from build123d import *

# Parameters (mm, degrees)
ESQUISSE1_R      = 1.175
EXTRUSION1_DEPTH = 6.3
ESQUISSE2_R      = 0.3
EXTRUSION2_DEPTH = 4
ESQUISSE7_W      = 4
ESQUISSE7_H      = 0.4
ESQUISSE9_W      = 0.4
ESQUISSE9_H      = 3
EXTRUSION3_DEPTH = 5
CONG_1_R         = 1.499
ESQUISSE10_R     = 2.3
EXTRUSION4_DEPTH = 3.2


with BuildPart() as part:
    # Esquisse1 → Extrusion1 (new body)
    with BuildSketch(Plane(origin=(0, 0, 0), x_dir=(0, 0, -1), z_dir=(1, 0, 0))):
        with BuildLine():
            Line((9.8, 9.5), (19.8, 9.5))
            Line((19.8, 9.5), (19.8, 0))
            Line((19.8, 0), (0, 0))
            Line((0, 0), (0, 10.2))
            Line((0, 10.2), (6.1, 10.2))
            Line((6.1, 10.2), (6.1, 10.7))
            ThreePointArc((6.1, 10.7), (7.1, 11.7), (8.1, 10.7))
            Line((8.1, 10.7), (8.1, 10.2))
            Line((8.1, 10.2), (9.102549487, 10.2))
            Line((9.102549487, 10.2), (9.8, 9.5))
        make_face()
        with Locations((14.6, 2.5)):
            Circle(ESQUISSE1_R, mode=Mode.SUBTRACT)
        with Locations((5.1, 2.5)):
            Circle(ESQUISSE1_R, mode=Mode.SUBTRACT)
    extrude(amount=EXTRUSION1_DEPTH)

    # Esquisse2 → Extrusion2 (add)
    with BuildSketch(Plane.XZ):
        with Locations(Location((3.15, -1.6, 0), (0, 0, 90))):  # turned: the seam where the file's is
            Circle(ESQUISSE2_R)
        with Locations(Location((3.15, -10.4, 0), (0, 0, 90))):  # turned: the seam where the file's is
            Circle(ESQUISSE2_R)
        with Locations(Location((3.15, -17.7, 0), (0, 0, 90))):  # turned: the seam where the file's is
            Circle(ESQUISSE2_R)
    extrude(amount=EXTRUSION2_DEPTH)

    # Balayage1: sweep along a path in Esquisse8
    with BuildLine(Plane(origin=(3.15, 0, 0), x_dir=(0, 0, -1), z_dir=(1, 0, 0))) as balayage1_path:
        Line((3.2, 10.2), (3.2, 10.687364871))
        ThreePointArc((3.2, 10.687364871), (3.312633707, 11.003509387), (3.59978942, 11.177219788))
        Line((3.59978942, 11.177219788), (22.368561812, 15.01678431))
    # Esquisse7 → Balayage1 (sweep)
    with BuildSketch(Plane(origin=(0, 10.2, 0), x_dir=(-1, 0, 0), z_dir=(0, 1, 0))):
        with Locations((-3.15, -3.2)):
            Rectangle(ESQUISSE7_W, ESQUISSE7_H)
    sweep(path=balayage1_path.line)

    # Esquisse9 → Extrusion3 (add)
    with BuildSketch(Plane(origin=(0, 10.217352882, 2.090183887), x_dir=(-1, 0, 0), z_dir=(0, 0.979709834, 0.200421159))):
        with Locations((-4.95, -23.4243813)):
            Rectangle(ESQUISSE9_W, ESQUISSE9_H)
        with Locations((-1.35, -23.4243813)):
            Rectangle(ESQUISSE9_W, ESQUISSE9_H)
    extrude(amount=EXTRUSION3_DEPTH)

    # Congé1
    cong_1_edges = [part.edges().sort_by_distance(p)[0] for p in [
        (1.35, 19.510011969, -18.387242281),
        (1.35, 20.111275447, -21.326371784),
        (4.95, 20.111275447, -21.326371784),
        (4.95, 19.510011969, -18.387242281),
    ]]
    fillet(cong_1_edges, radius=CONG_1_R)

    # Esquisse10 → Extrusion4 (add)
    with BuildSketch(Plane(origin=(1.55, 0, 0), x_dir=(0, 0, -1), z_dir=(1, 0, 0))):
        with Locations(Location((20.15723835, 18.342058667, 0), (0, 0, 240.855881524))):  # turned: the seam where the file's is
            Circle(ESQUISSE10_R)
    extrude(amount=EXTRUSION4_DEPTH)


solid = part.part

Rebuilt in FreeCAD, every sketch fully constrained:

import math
import FreeCAD as App
import Part
import Sketcher


def edges_at(feature, points):
    """Names of the edges that pass closest to the given points."""
    edges = feature.Shape.Edges
    near = lambda p: min(range(len(edges)), key=lambda i: edges[i].distToShape(Part.Vertex(*p))[0])
    return sorted({f"Edge{near(p) + 1}" for p in points})

doc = App.newDocument("Part")
params = doc.addObject("Spreadsheet::Sheet", "Params")
for row, (alias, value) in enumerate([
    ("sketch1_radius", "1 mm"),
    ("sketch1_diameter", "2.35 mm"),
    ("sketch1_height", "10 mm"),
    ("sketch1_width", "0.5 mm"),
    ("sketch1_width2", "10.2 mm"),
    ("pad1_length", "6.3 mm"),
    ("sketch2_diameter", "0.6 mm"),
    ("pad2_length", "4 mm"),
    ("sketch3_width", "4 mm"),
    ("sketch3_height", "0.4 mm"),
    ("sketch4_radius", "0.5 mm"),
    ("sketch5_height", "3 mm"),
    ("sketch5_width", "0.4 mm"),
    ("pad3_length", "5 mm"),
    ("fillet_radius", "1.499 mm"),
    ("sketch6_diameter", "4.6 mm"),
    ("pad4_length", "3.2 mm"),
], start=1):
    params.set(f"A{row}", alias)
    params.set(f"B{row}", "=" + value)
    params.setAlias(f"B{row}", alias)

body = doc.addObject("PartDesign::Body", "Body")

# Sketch on YZ plane
sketch1 = doc.addObject("Sketcher::SketchObject", "Sketch")
body.addObject(sketch1)
sketch1.AttachmentSupport = (doc.YZ_Plane, [""])
sketch1.MapMode = "FlatFace"
sketch1.addGeometry([
    Part.LineSegment(App.Vector(9.5, -19.8, 0), App.Vector(9.5, -9.8, 0)),  # 0
    Part.LineSegment(App.Vector(9.5, -9.8, 0), App.Vector(10.2, -9.1, 0)),  # 1
    Part.LineSegment(App.Vector(10.2, -9.1, 0), App.Vector(10.2, -8.1, 0)),  # 2
    Part.LineSegment(App.Vector(10.2, -8.1, 0), App.Vector(10.7, -8.1, 0)),  # 3
    Part.ArcOfCircle(Part.Circle(App.Vector(10.7, -7.1, 0), App.Vector(0, 0, 1), 1), math.radians(-90), math.radians(90)),  # 4
    Part.LineSegment(App.Vector(10.7, -6.1, 0), App.Vector(10.2, -6.1, 0)),  # 5
    Part.LineSegment(App.Vector(10.2, -6.1, 0), App.Vector(10.2, 0, 0)),  # 6
    Part.LineSegment(App.Vector(10.2, 0, 0), App.Vector(0, 0, 0)),  # 7
    Part.LineSegment(App.Vector(0, 0, 0), App.Vector(0, -19.8, 0)),  # 8
    Part.LineSegment(App.Vector(0, -19.8, 0), App.Vector(9.5, -19.8, 0)),  # 9
    Part.Circle(App.Vector(2.5, -14.6, 0), App.Vector(0, 0, 1), 1.2),  # 10
    Part.Circle(App.Vector(2.5, -5.1, 0), App.Vector(0, 0, 1), 1.2),  # 11
], False)
sketch1.addConstraint([
    Sketcher.Constraint("Coincident", 0, 2, 1, 1),
    Sketcher.Constraint("Coincident", 1, 2, 2, 1),
    Sketcher.Constraint("Coincident", 2, 2, 3, 1),
    Sketcher.Constraint("Tangent", 3, 2, 4, 1),
    Sketcher.Constraint("Tangent", 4, 2, 5, 1),
    Sketcher.Constraint("Coincident", 5, 2, 6, 1),
    Sketcher.Constraint("Coincident", 6, 2, 7, 1),
    Sketcher.Constraint("Coincident", 7, 2, 8, 1),
    Sketcher.Constraint("Coincident", 8, 2, 9, 1),
    Sketcher.Constraint("Coincident", 9, 2, 0, 1),
    Sketcher.Constraint("Vertical", 0),
    Sketcher.Constraint("Vertical", 2),
    Sketcher.Constraint("Horizontal", 3),
    Sketcher.Constraint("Horizontal", 5),
    Sketcher.Constraint("Vertical", 6),
    Sketcher.Constraint("Horizontal", 7),
    Sketcher.Constraint("Vertical", 8),
    Sketcher.Constraint("Horizontal", 9),
    Sketcher.Constraint("Coincident", 7, 2, -1, 1),
    Sketcher.Constraint("Equal", 10, 11),
    Sketcher.Constraint("Vertical", 10, 3, 11, 3),
    Sketcher.Constraint("Vertical", 2, 2, 5, 2),
    Sketcher.Constraint("Radius", 4, 1.0),
    Sketcher.Constraint("Diameter", 10, 2.35),
    Sketcher.Constraint("DistanceY", 0, 1, 0, 2, 10.0),
    Sketcher.Constraint("DistanceX", 3, 1, 3, 2, 0.5),
    Sketcher.Constraint("DistanceX", 7, 2, 7, 1, 10.2),
    Sketcher.Constraint("DistanceX", 9, 1, 9, 2, 9.5),
    Sketcher.Constraint("DistanceY", 6, 1, 6, 2, 6.1),
    Sketcher.Constraint("DistanceY", 8, 2, 8, 1, 19.8),
    Sketcher.Constraint("DistanceY", 4, 3, 11, 3, 2.0),
    Sketcher.Constraint("DistanceX", 11, 3, 0, 2, 7.0),
    Sketcher.Constraint("DistanceY", 10, 3, -1, 1, 14.6),
    Sketcher.Constraint("DistanceY", 2, 1, 2, 2, 1.002549),
])
sketch1.setExpression("Constraints[22]", "Params.sketch1_radius")
sketch1.setExpression("Constraints[23]", "Params.sketch1_diameter")
sketch1.setExpression("Constraints[24]", "Params.sketch1_height")
sketch1.setExpression("Constraints[25]", "Params.sketch1_width")
sketch1.setExpression("Constraints[26]", "Params.sketch1_width2")
pad1 = doc.addObject("PartDesign::Pad", "Pad")
body.addObject(pad1)
pad1.Profile = sketch1
pad1.setExpression("Length", "Params.pad1_length")

# Sketch on XZ plane
sketch2 = doc.addObject("Sketcher::SketchObject", "Sketch001")
body.addObject(sketch2)
sketch2.AttachmentSupport = (doc.XZ_Plane, [""])
sketch2.MapMode = "FlatFace"
sketch2.addGeometry([
    Part.Circle(App.Vector(3.15, -1.6, 0), App.Vector(0, 0, 1), 0.3),
    Part.Circle(App.Vector(3.15, -10.4, 0), App.Vector(0, 0, 1), 0.3),
    Part.Circle(App.Vector(3.15, -17.7, 0), App.Vector(0, 0, 1), 0.3),
], False)
sketch2.addConstraint([
    Sketcher.Constraint("Equal", 0, 1),
    Sketcher.Constraint("Equal", 1, 2),
    Sketcher.Constraint("Vertical", 0, 3, 1, 3),
    Sketcher.Constraint("Vertical", 1, 3, 2, 3),
    Sketcher.Constraint("Diameter", 0, 0.6),
    Sketcher.Constraint("DistanceY", 0, 3, -1, 1, 1.6),
    Sketcher.Constraint("DistanceY", 1, 3, -1, 1, 10.4),
    Sketcher.Constraint("DistanceY", 2, 3, -1, 1, 17.7),
    Sketcher.Constraint("DistanceX", -1, 1, 0, 3, 3.15),
])
sketch2.setExpression("Constraints[4]", "Params.sketch2_diameter")
pad2 = doc.addObject("PartDesign::Pad", "Pad001")
body.addObject(pad2)
pad2.Profile = sketch2
pad2.setExpression("Length", "Params.pad2_length")

# Sketch on XZ plane
sketch3 = doc.addObject("Sketcher::SketchObject", "Sketch002")
body.addObject(sketch3)
sketch3.AttachmentSupport = (doc.XZ_Plane, [""])
sketch3.MapMode = "FlatFace"
sketch3.AttachmentOffset = App.Placement(App.Vector(0, 0, -10.2), App.Rotation())
sketch3.addGeometry([
    Part.LineSegment(App.Vector(5.15, -3, 0), App.Vector(5.15, -3.4, 0)),
    Part.LineSegment(App.Vector(5.15, -3.4, 0), App.Vector(1.15, -3.4, 0)),
    Part.LineSegment(App.Vector(1.15, -3.4, 0), App.Vector(1.15, -3, 0)),
    Part.LineSegment(App.Vector(1.15, -3, 0), App.Vector(5.15, -3, 0)),
], False)
sketch3.addConstraint([
    Sketcher.Constraint("Coincident", 0, 2, 1, 1),
    Sketcher.Constraint("Coincident", 1, 2, 2, 1),
    Sketcher.Constraint("Coincident", 2, 2, 3, 1),
    Sketcher.Constraint("Coincident", 3, 2, 0, 1),
    Sketcher.Constraint("Vertical", 0),
    Sketcher.Constraint("Horizontal", 1),
    Sketcher.Constraint("Vertical", 2),
    Sketcher.Constraint("Horizontal", 3),
    Sketcher.Constraint("DistanceX", 1, 2, 1, 1, 4.0),
    Sketcher.Constraint("DistanceY", 0, 2, 0, 1, 0.4),
    Sketcher.Constraint("DistanceY", 2, 2, -1, 1, 3.0),
    Sketcher.Constraint("DistanceX", -1, 1, 0, 2, 5.15),
])
sketch3.setExpression("Constraints[8]", "Params.sketch3_width")
sketch3.setExpression("Constraints[9]", "Params.sketch3_height")

# Sketch on YZ plane
sketch4 = doc.addObject("Sketcher::SketchObject", "Sketch003")
body.addObject(sketch4)
sketch4.AttachmentSupport = (doc.YZ_Plane, [""])
sketch4.MapMode = "FlatFace"
sketch4.AttachmentOffset = App.Placement(App.Vector(0, 0, 3.15), App.Rotation())
sketch4.addGeometry([
    Part.LineSegment(App.Vector(10.2, -3.2, 0), App.Vector(10.69, -3.2, 0)),
    Part.ArcOfCircle(Part.Circle(App.Vector(10.69, -3.7, 0), App.Vector(0, 0, 1), 0.5), math.radians(12), math.radians(90)),
    Part.LineSegment(App.Vector(11.18, -3.6, 0), App.Vector(15.02, -22.37, 0)),
], False)
sketch4.addConstraint([
    Sketcher.Constraint("Tangent", 0, 2, 1, 2),
    Sketcher.Constraint("Tangent", 1, 1, 2, 1),
    Sketcher.Constraint("Horizontal", 0),
    Sketcher.Constraint("Radius", 1, 0.5),
    Sketcher.Constraint("DistanceY", 1, 3, -1, 1, 3.7),
    Sketcher.Constraint("DistanceX", -1, 1, 0, 1, 10.2),
    Sketcher.Constraint("Distance", 2, 19.157481),
    Sketcher.Constraint("DistanceX", 0, 1, 0, 2, 0.487365),
    Sketcher.Constraint("DistanceX", -1, 1, 1, 1, 11.17722),
])
sketch4.setExpression("Constraints[3]", "Params.sketch4_radius")
doc.recompute()

additivepipe = doc.addObject("PartDesign::AdditivePipe", "AdditivePipe")
body.addObject(additivepipe)
additivepipe.Profile = sketch3
additivepipe.Spine = (sketch4, ["Edge1", "Edge2", "Edge3"])

# Sketch on an angled plane
sketch5 = doc.addObject("Sketcher::SketchObject", "Sketch004")
body.addObject(sketch5)
sketch5.Placement = App.Placement(App.Vector(0, 10.217353, 2.090184), App.Rotation(App.Vector(-1, 0, 0), App.Vector(0, -0.200421159, 0.979709834), App.Vector(0, 0.979709834, 0.200421159), "ZXY"))
sketch5.addGeometry([
    Part.LineSegment(App.Vector(-5.15, -21.92, 0), App.Vector(-5.15, -24.92, 0)),  # 0
    Part.LineSegment(App.Vector(-5.15, -24.92, 0), App.Vector(-4.75, -24.92, 0)),  # 1
    Part.LineSegment(App.Vector(-4.75, -24.92, 0), App.Vector(-4.75, -21.92, 0)),  # 2
    Part.LineSegment(App.Vector(-4.75, -21.92, 0), App.Vector(-5.15, -21.92, 0)),  # 3
    Part.LineSegment(App.Vector(-1.55, -21.92, 0), App.Vector(-1.55, -24.92, 0)),  # 4
    Part.LineSegment(App.Vector(-1.55, -24.92, 0), App.Vector(-1.15, -24.92, 0)),  # 5
    Part.LineSegment(App.Vector(-1.15, -24.92, 0), App.Vector(-1.15, -21.92, 0)),  # 6
    Part.LineSegment(App.Vector(-1.15, -21.92, 0), App.Vector(-1.55, -21.92, 0)),  # 7
], False)
sketch5.addConstraint([
    Sketcher.Constraint("Coincident", 0, 2, 1, 1),
    Sketcher.Constraint("Coincident", 1, 2, 2, 1),
    Sketcher.Constraint("Coincident", 2, 2, 3, 1),
    Sketcher.Constraint("Coincident", 3, 2, 0, 1),
    Sketcher.Constraint("Coincident", 4, 2, 5, 1),
    Sketcher.Constraint("Coincident", 5, 2, 6, 1),
    Sketcher.Constraint("Coincident", 6, 2, 7, 1),
    Sketcher.Constraint("Coincident", 7, 2, 4, 1),
    Sketcher.Constraint("Vertical", 0),
    Sketcher.Constraint("Horizontal", 1),
    Sketcher.Constraint("Vertical", 2),
    Sketcher.Constraint("Horizontal", 3),
    Sketcher.Constraint("Vertical", 4),
    Sketcher.Constraint("Horizontal", 5),
    Sketcher.Constraint("Vertical", 6),
    Sketcher.Constraint("Horizontal", 7),
    Sketcher.Constraint("Horizontal", 1, 2, 4, 2),
    Sketcher.Constraint("Horizontal", 3, 2, 6, 2),
    Sketcher.Constraint("Equal", 3, 5),
    Sketcher.Constraint("DistanceY", 0, 2, 0, 1, 3.0),
    Sketcher.Constraint("DistanceX", 1, 1, 1, 2, 0.4),
    Sketcher.Constraint("DistanceX", 0, 2, 5, 2, 4.0),
    Sketcher.Constraint("DistanceX", 0, 2, -1, 1, 5.15),
    Sketcher.Constraint("DistanceY", 0, 2, -1, 1, 24.924381),
])
sketch5.setExpression("Constraints[19]", "Params.sketch5_height")
sketch5.setExpression("Constraints[20]", "Params.sketch5_width")
pad3 = doc.addObject("PartDesign::Pad", "Pad002")
body.addObject(pad3)
pad3.Profile = sketch5
pad3.setExpression("Length", "Params.pad3_length")
doc.recompute()

fillet = doc.addObject("PartDesign::Fillet", "Fillet")
body.addObject(fillet)
fillet.Base = (pad3, edges_at(pad3, [
    (1.35, 19.51, -18.387),
    (1.35, 20.111, -21.326),
    (4.95, 20.111, -21.326),
    (4.95, 19.51, -18.387),
]))
fillet.setExpression("Radius", "Params.fillet_radius")

# Sketch on YZ plane
sketch6 = doc.addObject("Sketcher::SketchObject", "Sketch005")
body.addObject(sketch6)
sketch6.AttachmentSupport = (doc.YZ_Plane, [""])
sketch6.MapMode = "FlatFace"
sketch6.AttachmentOffset = App.Placement(App.Vector(0, 0, 1.55), App.Rotation())
sketch6.addGeometry(Part.Circle(App.Vector(18.3, -20.2, 0), App.Vector(0, 0, 1), 2.3), False)
sketch6.addConstraint([
    Sketcher.Constraint("Diameter", 0, 4.6),
    Sketcher.Constraint("DistanceX", -1, 1, 0, 3, 18.342059),
    Sketcher.Constraint("DistanceY", 0, 3, -1, 1, 20.157238),
])
sketch6.setExpression("Constraints[0]", "Params.sketch6_diameter")
pad4 = doc.addObject("PartDesign::Pad", "Pad003")
body.addObject(pad4)
pad4.Profile = sketch6
pad4.setExpression("Length", "Params.pad4_length")

doc.recompute()
